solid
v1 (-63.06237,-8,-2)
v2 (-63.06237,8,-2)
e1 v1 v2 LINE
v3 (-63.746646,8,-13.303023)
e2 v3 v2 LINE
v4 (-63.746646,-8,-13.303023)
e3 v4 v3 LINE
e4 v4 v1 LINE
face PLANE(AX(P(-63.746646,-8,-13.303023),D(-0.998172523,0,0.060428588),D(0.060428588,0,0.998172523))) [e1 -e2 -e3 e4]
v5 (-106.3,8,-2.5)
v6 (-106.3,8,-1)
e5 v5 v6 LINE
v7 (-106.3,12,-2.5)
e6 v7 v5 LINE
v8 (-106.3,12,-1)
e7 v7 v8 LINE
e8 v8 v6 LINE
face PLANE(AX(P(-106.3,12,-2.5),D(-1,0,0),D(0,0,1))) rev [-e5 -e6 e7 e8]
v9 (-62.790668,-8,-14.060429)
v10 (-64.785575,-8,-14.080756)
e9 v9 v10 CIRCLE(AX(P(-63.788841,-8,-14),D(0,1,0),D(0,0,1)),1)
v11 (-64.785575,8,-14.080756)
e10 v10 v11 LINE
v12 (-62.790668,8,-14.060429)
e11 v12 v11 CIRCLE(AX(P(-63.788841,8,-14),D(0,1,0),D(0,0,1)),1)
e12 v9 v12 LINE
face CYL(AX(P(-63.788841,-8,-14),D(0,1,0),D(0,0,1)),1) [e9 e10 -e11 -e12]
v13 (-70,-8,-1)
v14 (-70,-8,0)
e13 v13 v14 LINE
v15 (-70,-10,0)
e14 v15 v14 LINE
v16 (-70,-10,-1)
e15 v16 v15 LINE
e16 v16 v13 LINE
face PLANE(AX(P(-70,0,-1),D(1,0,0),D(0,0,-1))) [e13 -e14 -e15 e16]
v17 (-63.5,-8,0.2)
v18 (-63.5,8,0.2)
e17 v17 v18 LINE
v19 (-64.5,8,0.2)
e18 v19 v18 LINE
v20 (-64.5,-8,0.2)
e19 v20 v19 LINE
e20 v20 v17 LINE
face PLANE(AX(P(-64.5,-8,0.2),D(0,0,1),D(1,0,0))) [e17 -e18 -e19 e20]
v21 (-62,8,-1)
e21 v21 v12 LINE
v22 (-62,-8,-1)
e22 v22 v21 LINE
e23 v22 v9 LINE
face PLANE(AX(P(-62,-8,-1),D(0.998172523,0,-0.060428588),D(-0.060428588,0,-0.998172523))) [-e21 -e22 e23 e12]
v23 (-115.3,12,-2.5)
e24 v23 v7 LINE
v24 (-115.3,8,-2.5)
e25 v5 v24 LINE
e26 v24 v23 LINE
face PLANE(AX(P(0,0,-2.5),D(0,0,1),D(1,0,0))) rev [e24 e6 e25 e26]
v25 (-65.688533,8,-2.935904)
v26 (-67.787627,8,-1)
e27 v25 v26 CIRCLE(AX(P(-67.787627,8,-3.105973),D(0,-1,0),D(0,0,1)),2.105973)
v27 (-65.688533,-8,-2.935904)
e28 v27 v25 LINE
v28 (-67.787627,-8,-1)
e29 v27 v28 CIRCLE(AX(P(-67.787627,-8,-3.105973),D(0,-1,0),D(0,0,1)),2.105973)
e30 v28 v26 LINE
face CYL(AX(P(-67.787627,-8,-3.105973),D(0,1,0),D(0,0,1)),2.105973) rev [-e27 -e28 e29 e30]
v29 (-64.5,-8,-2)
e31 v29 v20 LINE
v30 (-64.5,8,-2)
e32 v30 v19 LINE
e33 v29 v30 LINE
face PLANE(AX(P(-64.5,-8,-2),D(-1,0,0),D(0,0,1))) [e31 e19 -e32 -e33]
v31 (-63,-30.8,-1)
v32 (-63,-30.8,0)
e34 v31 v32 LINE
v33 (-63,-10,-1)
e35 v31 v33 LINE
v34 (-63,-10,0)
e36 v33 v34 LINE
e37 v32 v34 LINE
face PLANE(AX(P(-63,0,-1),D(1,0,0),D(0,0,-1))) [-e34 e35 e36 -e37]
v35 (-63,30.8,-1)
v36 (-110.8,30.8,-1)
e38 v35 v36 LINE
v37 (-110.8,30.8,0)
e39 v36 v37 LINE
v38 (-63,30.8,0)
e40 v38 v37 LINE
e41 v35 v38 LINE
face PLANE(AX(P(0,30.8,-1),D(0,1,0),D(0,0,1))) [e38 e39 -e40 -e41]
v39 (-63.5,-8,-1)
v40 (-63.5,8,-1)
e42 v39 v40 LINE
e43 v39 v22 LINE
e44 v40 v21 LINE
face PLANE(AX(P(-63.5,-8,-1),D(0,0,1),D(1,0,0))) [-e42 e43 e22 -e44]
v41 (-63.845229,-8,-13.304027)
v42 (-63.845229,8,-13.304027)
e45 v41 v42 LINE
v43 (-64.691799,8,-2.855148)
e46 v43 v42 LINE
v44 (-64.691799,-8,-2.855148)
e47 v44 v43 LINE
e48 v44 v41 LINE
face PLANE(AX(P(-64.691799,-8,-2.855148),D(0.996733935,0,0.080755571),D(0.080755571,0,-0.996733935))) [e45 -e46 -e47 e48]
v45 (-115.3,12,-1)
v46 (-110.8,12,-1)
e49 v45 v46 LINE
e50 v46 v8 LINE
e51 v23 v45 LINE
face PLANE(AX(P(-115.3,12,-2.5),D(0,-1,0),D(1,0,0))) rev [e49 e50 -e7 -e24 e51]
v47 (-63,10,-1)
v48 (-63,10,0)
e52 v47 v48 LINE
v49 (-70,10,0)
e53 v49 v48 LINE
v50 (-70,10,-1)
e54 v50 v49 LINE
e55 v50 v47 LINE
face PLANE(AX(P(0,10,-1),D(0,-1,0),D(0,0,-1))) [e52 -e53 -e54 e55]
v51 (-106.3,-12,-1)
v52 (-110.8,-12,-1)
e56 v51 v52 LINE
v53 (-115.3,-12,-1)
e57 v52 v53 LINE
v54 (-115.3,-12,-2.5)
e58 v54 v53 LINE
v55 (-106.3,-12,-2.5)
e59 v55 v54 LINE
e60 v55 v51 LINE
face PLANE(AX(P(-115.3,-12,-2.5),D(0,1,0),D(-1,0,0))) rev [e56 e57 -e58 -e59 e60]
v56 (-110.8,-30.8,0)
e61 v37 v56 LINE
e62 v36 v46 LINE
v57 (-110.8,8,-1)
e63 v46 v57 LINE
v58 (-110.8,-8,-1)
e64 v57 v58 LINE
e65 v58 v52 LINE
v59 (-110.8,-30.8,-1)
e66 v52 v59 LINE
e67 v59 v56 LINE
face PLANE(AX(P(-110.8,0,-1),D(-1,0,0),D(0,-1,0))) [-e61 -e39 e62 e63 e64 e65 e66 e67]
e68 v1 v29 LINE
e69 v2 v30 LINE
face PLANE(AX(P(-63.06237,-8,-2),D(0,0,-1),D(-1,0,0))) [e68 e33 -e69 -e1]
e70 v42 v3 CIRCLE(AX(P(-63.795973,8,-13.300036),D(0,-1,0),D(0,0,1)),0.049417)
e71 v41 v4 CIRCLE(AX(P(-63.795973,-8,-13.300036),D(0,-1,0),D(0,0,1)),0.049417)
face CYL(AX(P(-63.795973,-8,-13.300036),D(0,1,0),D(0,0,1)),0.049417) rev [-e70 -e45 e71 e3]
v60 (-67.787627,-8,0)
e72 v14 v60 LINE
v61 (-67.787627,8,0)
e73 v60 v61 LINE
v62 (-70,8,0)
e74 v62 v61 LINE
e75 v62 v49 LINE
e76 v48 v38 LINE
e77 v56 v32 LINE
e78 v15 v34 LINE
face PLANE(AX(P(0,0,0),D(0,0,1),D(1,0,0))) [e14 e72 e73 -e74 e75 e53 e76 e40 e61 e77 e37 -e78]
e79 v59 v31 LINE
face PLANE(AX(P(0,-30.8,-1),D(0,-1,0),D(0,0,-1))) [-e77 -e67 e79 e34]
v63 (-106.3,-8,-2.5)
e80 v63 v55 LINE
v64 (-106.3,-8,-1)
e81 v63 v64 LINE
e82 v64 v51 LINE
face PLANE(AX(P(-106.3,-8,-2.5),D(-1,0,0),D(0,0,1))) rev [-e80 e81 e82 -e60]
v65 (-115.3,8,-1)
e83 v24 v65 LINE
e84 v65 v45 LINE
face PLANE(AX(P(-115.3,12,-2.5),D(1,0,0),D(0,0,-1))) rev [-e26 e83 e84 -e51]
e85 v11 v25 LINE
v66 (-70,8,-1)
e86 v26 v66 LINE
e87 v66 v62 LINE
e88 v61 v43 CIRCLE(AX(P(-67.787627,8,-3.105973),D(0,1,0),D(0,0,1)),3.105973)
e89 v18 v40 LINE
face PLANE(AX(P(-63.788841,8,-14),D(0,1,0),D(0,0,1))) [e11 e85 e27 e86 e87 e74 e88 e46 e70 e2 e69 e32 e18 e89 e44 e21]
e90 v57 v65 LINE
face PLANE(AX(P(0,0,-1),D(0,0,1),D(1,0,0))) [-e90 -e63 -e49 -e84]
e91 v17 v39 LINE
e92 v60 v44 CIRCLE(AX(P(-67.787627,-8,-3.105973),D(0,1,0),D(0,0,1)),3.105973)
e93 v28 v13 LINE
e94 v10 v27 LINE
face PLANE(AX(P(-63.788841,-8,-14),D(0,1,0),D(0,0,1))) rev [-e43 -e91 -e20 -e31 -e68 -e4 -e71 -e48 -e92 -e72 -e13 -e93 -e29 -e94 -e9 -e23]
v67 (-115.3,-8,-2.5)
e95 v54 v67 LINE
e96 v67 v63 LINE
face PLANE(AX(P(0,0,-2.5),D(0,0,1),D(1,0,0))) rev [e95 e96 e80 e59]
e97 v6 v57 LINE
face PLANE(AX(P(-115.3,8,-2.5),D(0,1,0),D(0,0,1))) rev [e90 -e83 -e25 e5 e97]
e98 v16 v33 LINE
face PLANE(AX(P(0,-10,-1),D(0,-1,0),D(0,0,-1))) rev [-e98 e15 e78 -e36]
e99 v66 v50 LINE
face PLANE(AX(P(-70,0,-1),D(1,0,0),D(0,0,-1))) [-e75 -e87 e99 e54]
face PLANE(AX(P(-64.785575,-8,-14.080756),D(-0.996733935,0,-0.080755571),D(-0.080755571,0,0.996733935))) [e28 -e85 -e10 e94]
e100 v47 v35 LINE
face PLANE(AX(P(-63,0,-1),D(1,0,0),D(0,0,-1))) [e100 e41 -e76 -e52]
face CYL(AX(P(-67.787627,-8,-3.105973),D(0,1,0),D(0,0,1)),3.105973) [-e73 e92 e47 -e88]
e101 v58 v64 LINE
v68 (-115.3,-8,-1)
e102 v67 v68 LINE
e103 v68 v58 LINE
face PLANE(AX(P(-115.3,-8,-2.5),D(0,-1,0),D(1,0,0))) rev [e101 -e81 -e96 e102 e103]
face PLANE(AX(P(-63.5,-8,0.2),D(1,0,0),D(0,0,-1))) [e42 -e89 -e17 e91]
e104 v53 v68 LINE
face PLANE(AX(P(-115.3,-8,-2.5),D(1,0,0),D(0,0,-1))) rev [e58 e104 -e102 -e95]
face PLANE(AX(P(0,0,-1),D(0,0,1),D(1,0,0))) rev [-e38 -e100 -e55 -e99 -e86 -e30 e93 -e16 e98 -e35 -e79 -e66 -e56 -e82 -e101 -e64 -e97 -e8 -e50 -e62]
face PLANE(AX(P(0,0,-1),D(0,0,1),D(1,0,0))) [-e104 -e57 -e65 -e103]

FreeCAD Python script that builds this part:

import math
import FreeCAD as App
import Part
import Sketcher
from FreeCAD import Vector
Q = App.Units.Quantity


def add_polygon(sketch, points):
    """Adds a closed chain of lines whose ends are joined by coincident constraints."""
    first, n = sketch.GeometryCount, len(points)
    for a, b in zip(points, points[1:] + points[:1]):
        sketch.addGeometry(Part.LineSegment(App.Vector(*a, 0), App.Vector(*b, 0)), False)
    for i in range(n):
        sketch.addConstraint(Sketcher.Constraint("Coincident", first + i, 2, first + (i + 1) % n, 1))

doc = App.newDocument("Part")
body = doc.addObject("PartDesign::Body", "Body")

# Sketch on XY plane
sketch1 = doc.addObject("Sketcher::SketchObject", "Sketch")
body.addObject(sketch1)
sketch1.AttachmentSupport = (doc.XY_Plane, [""])
sketch1.MapMode = "FlatFace"
add_polygon(sketch1, [(-63, -10), (-70, -10), (-70, 10), (-63, 10), (-63, 30.8), (-110.8, 30.8), (-110.8, -30.8), (-63, -30.8)])  # lines 0-7
sketch1.addConstraint([
    Sketcher.Constraint("Horizontal", 0),
    Sketcher.Constraint("Vertical", 1),
    Sketcher.Constraint("Horizontal", 2),
    Sketcher.Constraint("Vertical", 3),
    Sketcher.Constraint("Horizontal", 4),
    Sketcher.Constraint("Vertical", 5),
    Sketcher.Constraint("Horizontal", 6),
    Sketcher.Constraint("Vertical", 7),
    Sketcher.Constraint("Symmetric", 3, 2, 6, 2, -1),
    Sketcher.Constraint("Equal", 3, 7),
    Sketcher.Constraint("DistanceX", 0, 2, 0, 1, Q("7 mm")),
    Sketcher.Constraint("DistanceY", 1, 1, 1, 2, Q("20 mm")),
    Sketcher.Constraint("DistanceX", 4, 2, 4, 1, Q("47.8 mm")),
    Sketcher.Constraint("DistanceY", 3, 1, 3, 2, Q("20.8 mm")),
    Sketcher.Constraint("DistanceX", 0, 2, -1, 1, Q("70 mm")),
])
pad1 = doc.addObject("PartDesign::Pad", "Pad")
body.addObject(pad1)
pad1.Profile = sketch1
pad1.Length = 1
pad1.Reversed = True

# Sketch on XY plane
sketch2 = doc.addObject("Sketcher::SketchObject", "Sketch001")
body.addObject(sketch2)
sketch2.AttachmentSupport = (doc.XY_Plane, [""])
sketch2.MapMode = "FlatFace"
sketch2.AttachmentOffset = App.Placement(Vector(0, 0, -1), App.Rotation())
add_polygon(sketch2, [(-106.3, -8), (-106.3, -12), (-115.3, -12), (-115.3, -8)])  # lines 0-3
add_polygon(sketch2, [(-106.3, 12), (-106.3, 8), (-115.3, 8), (-115.3, 12)])  # lines 4-7
sketch2.addConstraint([
    Sketcher.Constraint("Vertical", 0),
    Sketcher.Constraint("Horizontal", 1),
    Sketcher.Constraint("Vertical", 2),
    Sketcher.Constraint("Horizontal", 3),
    Sketcher.Constraint("Vertical", 4),
    Sketcher.Constraint("Horizontal", 5),
    Sketcher.Constraint("Vertical", 6),
    Sketcher.Constraint("Horizontal", 7),
    Sketcher.Constraint("Symmetric", 3, 2, 4, 2, -1),
    Sketcher.Constraint("Symmetric", 1, 2, 6, 2, -1),
    Sketcher.Constraint("DistanceX", 1, 2, 1, 1, Q("9 mm")),
    Sketcher.Constraint("DistanceY", 0, 2, 0, 1, Q("4 mm")),
    Sketcher.Constraint("DistanceY", 0, 2, -1, 1, Q("12 mm")),
    Sketcher.Constraint("DistanceX", 0, 2, -1, 1, Q("106.3 mm")),
])
pad2 = doc.addObject("PartDesign::Pad", "Pad001")
body.addObject(pad2)
pad2.Profile = sketch2
pad2.Length = 1.5
pad2.Reversed = True

# Sketch on XZ plane
sketch3 = doc.addObject("Sketcher::SketchObject", "Sketch002")
body.addObject(sketch3)
sketch3.AttachmentSupport = (doc.XZ_Plane, [""])
sketch3.MapMode = "FlatFace"
sketch3.addGeometry([
    Part.LineSegment(Vector(-63.746646, -13.303023, 0), Vector(-63.06237, -2, 0)),  # 0
    Part.LineSegment(Vector(-63.06237, -2, 0), Vector(-64.5, -2, 0)),  # 1
    Part.LineSegment(Vector(-64.5, -2, 0), Vector(-64.5, 0.2, 0)),  # 2
    Part.LineSegment(Vector(-64.5, 0.2, 0), Vector(-63.5, 0.2, 0)),  # 3
    Part.LineSegment(Vector(-63.5, 0.2, 0), Vector(-63.5, -1, 0)),  # 4
    Part.LineSegment(Vector(-63.5, -1, 0), Vector(-62, -1, 0)),  # 5
    Part.LineSegment(Vector(-62, -1, 0), Vector(-62.790668, -14.060429, 0)),  # 6
    Part.ArcOfCircle(Part.Circle(Vector(-63.788841, -14, 0), Vector(0, 0, 1), 1), math.radians(-175.368003), math.radians(-3.464414)),  # 7
    Part.LineSegment(Vector(-64.785575, -14.080756, 0), Vector(-65.688533, -2.935904, 0)),  # 8
    Part.ArcOfCircle(Part.Circle(Vector(-67.787627, -3.105973, 0), Vector(0, 0, 1), 2.105973), math.radians(4.631997), math.radians(90)),  # 9
    Part.LineSegment(Vector(-67.787627, -1, 0), Vector(-70, -1, 0)),  # 10
    Part.LineSegment(Vector(-70, -1, 0), Vector(-70, 0, 0)),  # 11
    Part.LineSegment(Vector(-70, 0, 0), Vector(-67.787627, 0, 0)),  # 12
    Part.ArcOfCircle(Part.Circle(Vector(-67.787627, -3.105973, 0), Vector(0, 0, 1), 3.105973), math.radians(4.631997), math.radians(90)),  # 13
    Part.LineSegment(Vector(-64.691799, -2.855148, 0), Vector(-63.845229, -13.304027, 0)),  # 14
    Part.ArcOfCircle(Part.Circle(Vector(-63.795973, -13.300036, 0), Vector(0, 0, 1), 0.049417), math.radians(-175.368002), math.radians(-3.464414)),  # 15
], False)
sketch3.addConstraint([
    Sketcher.Constraint("Coincident", 0, 2, 1, 1),
    Sketcher.Constraint("Coincident", 1, 2, 2, 1),
    Sketcher.Constraint("Coincident", 2, 2, 3, 1),
    Sketcher.Constraint("Coincident", 3, 2, 4, 1),
    Sketcher.Constraint("Coincident", 4, 2, 5, 1),
    Sketcher.Constraint("Coincident", 5, 2, 6, 1),
    Sketcher.Constraint("Tangent", 6, 2, 7, 2),
    Sketcher.Constraint("Tangent", 7, 1, 8, 1),
    Sketcher.Constraint("Tangent", 8, 2, 9, 1),
    Sketcher.Constraint("Tangent", 9, 2, 10, 1),
    Sketcher.Constraint("Coincident", 10, 2, 11, 1),
    Sketcher.Constraint("Coincident", 11, 2, 12, 1),
    Sketcher.Constraint("Tangent", 12, 2, 13, 2),
    Sketcher.Constraint("Tangent", 13, 1, 14, 1),
    Sketcher.Constraint("Tangent", 14, 2, 15, 1),
    Sketcher.Constraint("Tangent", 15, 2, 0, 1),
    Sketcher.Constraint("Horizontal", 1),
    Sketcher.Constraint("Vertical", 2),
    Sketcher.Constraint("Horizontal", 3),
    Sketcher.Constraint("Vertical", 4),
    Sketcher.Constraint("Horizontal", 5),
    Sketcher.Constraint("Horizontal", 10),
    Sketcher.Constraint("Vertical", 11),
    Sketcher.Constraint("Horizontal", 12),
    Sketcher.Constraint("Coincident", 13, 3, 9, 3),
    Sketcher.Constraint("PointOnObject", 11, 2, -1),
    Sketcher.Constraint("Parallel", 0, 6),
    Sketcher.Constraint("Parallel", 8, 14),
    Sketcher.Constraint("Horizontal", 5, 2, 9, 2),
    Sketcher.Constraint("Equal", 3, 11),
    Sketcher.Constraint("Radius", 7, Q("1 mm")),
    Sketcher.Constraint("DistanceX", 3, 1, 3, 2, Q("1 mm")),
    Sketcher.Constraint("DistanceX", 5, 1, 5, 2, Q("1.5 mm")),
    Sketcher.Constraint("DistanceY", 2, 1, 2, 2, Q("2.2 mm")),
    Sketcher.Constraint("DistanceY", 4, 2, 4, 1, Q("1.2 mm")),
    Sketcher.Constraint("DistanceY", 7, 3, -1, 1, Q("14 mm")),
    Sketcher.Constraint("DistanceX", 5, 2, -1, 1, Q("62 mm")),
    Sketcher.Constraint("DistanceX", 10, 2, -1, 1, Q("70 mm")),
    Sketcher.Constraint("Radius", 9, Q("2.105973 mm")),
    Sketcher.Constraint("Radius", 15, Q("0.049417 mm")),
    Sketcher.Constraint("DistanceX", 1, 2, 1, 1, Q("1.43763 mm")),
    Sketcher.Constraint("DistanceX", 13, 1, -1, 1, Q("64.691799 mm")),
    Sketcher.Constraint("DistanceX", 0, 2, 6, 2, Q("0.271702 mm")),
])
pad3 = doc.addObject("PartDesign::Pad", "Pad002")
body.addObject(pad3)
pad3.Profile = sketch3
pad3.Type = "TwoLengths"
pad3.Length = 8
pad3.Length2 = 8
pad3.Reversed = True

doc.recompute()
